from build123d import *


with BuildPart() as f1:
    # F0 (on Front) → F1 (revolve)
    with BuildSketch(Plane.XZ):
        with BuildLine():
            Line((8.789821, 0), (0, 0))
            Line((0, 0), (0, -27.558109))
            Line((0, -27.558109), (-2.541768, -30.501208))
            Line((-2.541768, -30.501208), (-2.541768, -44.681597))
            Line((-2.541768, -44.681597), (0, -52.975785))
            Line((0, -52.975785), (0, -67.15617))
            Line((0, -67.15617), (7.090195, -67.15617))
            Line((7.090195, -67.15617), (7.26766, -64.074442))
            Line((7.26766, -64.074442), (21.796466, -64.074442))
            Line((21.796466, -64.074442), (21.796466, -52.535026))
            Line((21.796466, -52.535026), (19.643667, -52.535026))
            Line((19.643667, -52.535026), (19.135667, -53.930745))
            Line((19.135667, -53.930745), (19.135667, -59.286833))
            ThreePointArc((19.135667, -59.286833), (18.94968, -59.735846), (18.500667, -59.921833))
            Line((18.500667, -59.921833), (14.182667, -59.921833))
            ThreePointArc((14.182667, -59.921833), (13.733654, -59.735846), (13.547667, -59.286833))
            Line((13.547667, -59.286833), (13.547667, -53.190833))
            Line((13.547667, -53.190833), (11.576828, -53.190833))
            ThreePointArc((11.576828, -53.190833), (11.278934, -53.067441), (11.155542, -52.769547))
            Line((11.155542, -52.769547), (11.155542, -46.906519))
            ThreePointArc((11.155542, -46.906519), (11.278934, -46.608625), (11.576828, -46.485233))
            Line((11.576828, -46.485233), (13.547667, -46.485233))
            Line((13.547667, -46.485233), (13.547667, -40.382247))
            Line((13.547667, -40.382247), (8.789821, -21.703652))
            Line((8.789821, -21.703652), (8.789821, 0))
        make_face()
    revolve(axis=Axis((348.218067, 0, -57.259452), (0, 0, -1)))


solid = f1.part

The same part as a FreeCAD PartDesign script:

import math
import FreeCAD as App
import Part
import Sketcher
from FreeCAD import Vector
Q = App.Units.Quantity

doc = App.newDocument("Part")
body = doc.addObject("PartDesign::Body", "Body")

# Sketch on XZ plane
sketch1 = body.newObject("Sketcher::SketchObject", "Sketch")
sketch1.AttachmentSupport = (doc.getObject("XZ_Plane"), [""])
sketch1.MapMode = "FlatFace"
sketch1.addGeometry([
    Part.LineSegment(Vector(8.79, 0, 0), Vector(0, 0, 0)),  # 0
    Part.LineSegment(Vector(0, 0, 0), Vector(0, -27.56, 0)),  # 1
    Part.LineSegment(Vector(0, -27.56, 0), Vector(-2.54, -30.5, 0)),  # 2
    Part.LineSegment(Vector(-2.54, -30.5, 0), Vector(-2.54, -44.68, 0)),  # 3
    Part.LineSegment(Vector(-2.54, -44.68, 0), Vector(0, -52.98, 0)),  # 4
    Part.LineSegment(Vector(0, -52.98, 0), Vector(0, -67.16, 0)),  # 5
    Part.LineSegment(Vector(0, -67.16, 0), Vector(7.09, -67.16, 0)),  # 6
    Part.LineSegment(Vector(7.09, -67.16, 0), Vector(7.27, -64.07, 0)),  # 7
    Part.LineSegment(Vector(7.27, -64.07, 0), Vector(21.8, -64.07, 0)),  # 8
    Part.LineSegment(Vector(21.8, -64.07, 0), Vector(21.8, -52.54, 0)),  # 9
    Part.LineSegment(Vector(21.8, -52.54, 0), Vector(19.64, -52.54, 0)),  # 10
    Part.LineSegment(Vector(19.64, -52.54, 0), Vector(19.14, -53.93, 0)),  # 11
    Part.LineSegment(Vector(19.14, -53.93, 0), Vector(19.14, -59.29, 0)),  # 12
    Part.ArcOfCircle(Part.Circle(Vector(18.5, -59.29, 0), Vector(0, 0, 1), 0.63), math.radians(-90), math.radians(0)),  # 13
    Part.LineSegment(Vector(18.5, -59.92, 0), Vector(14.18, -59.92, 0)),  # 14
    Part.ArcOfCircle(Part.Circle(Vector(14.18, -59.29, 0), Vector(0, 0, 1), 0.63), math.radians(180), math.radians(270)),  # 15
    Part.LineSegment(Vector(13.55, -59.29, 0), Vector(13.55, -53.19, 0)),  # 16
    Part.LineSegment(Vector(13.55, -53.19, 0), Vector(11.58, -53.19, 0)),  # 17
    Part.ArcOfCircle(Part.Circle(Vector(11.58, -52.77, 0), Vector(0, 0, 1), 0.42), math.radians(-180), math.radians(-90)),  # 18
    Part.LineSegment(Vector(11.16, -52.77, 0), Vector(11.16, -46.91, 0)),  # 19
    Part.ArcOfCircle(Part.Circle(Vector(11.58, -46.91, 0), Vector(0, 0, 1), 0.42), math.radians(90), math.radians(180)),  # 20
    Part.LineSegment(Vector(11.58, -46.49, 0), Vector(13.55, -46.49, 0)),  # 21
    Part.LineSegment(Vector(13.55, -46.49, 0), Vector(13.55, -40.38, 0)),  # 22
    Part.LineSegment(Vector(13.55, -40.38, 0), Vector(8.79, -21.7, 0)),  # 23
    Part.LineSegment(Vector(8.79, -21.7, 0), Vector(8.79, 0, 0)),  # 24
], False)
sketch1.addGeometry(Part.LineSegment(Vector(348.22, 0, 0), Vector(348.22, -67.16, 0)), True)  # axis
sketch1.addConstraint([
    Sketcher.Constraint("Coincident", 0, 2, 1, 1),
    Sketcher.Constraint("Coincident", 1, 2, 2, 1),
    Sketcher.Constraint("Coincident", 2, 2, 3, 1),
    Sketcher.Constraint("Coincident", 3, 2, 4, 1),
    Sketcher.Constraint("Coincident", 4, 2, 5, 1),
    Sketcher.Constraint("Coincident", 5, 2, 6, 1),
    Sketcher.Constraint("Coincident", 6, 2, 7, 1),
    Sketcher.Constraint("Coincident", 7, 2, 8, 1),
    Sketcher.Constraint("Coincident", 8, 2, 9, 1),
    Sketcher.Constraint("Coincident", 9, 2, 10, 1),
    Sketcher.Constraint("Coincident", 10, 2, 11, 1),
    Sketcher.Constraint("Coincident", 11, 2, 12, 1),
    Sketcher.Constraint("Tangent", 12, 2, 13, 2),
    Sketcher.Constraint("Tangent", 13, 1, 14, 1),
    Sketcher.Constraint("Tangent", 14, 2, 15, 2),
    Sketcher.Constraint("Tangent", 15, 1, 16, 1),
    Sketcher.Constraint("Coincident", 16, 2, 17, 1),
    Sketcher.Constraint("Tangent", 17, 2, 18, 2),
    Sketcher.Constraint("Tangent", 18, 1, 19, 1),
    Sketcher.Constraint("Tangent", 19, 2, 20, 2),
    Sketcher.Constraint("Tangent", 20, 1, 21, 1),
    Sketcher.Constraint("Coincident", 21, 2, 22, 1),
    Sketcher.Constraint("Coincident", 22, 2, 23, 1),
    Sketcher.Constraint("Coincident", 23, 2, 24, 1),
    Sketcher.Constraint("Coincident", 24, 2, 0, 1),
    Sketcher.Constraint("Horizontal", 0),
    Sketcher.Constraint("Vertical", 1),
    Sketcher.Constraint("Vertical", 3),
    Sketcher.Constraint("Vertical", 5),
    Sketcher.Constraint("Horizontal", 6),
    Sketcher.Constraint("Horizontal", 8),
    Sketcher.Constraint("Vertical", 9),
    Sketcher.Constraint("Horizontal", 10),
    Sketcher.Constraint("Vertical", 12),
    Sketcher.Constraint("Horizontal", 14),
    Sketcher.Constraint("Vertical", 16),
    Sketcher.Constraint("Horizontal", 17),
    Sketcher.Constraint("Vertical", 19),
    Sketcher.Constraint("Horizontal", 21),
    Sketcher.Constraint("Vertical", 22),
    Sketcher.Constraint("Vertical", 24),
    Sketcher.Constraint("Vertical", 25),
    Sketcher.Constraint("Coincident", 0, 2, -1, 1),
    Sketcher.Constraint("Equal", 13, 15),
    Sketcher.Constraint("Equal", 18, 20),
    Sketcher.Constraint("PointOnObject", 4, 2, -2),
    Sketcher.Constraint("PointOnObject", 25, 1, -1),
    Sketcher.Constraint("Horizontal", 6, 2, 25, 2),
    Sketcher.Constraint("Vertical", 16, 2, 21, 2),
    Sketcher.Constraint("Angle", 11, Q("-109.999994 deg")),
    Sketcher.Constraint("Radius", 13, Q("0.025 in")),
    Sketcher.Constraint("DistanceX", 14, 2, 14, 1, Q("0.17 in")),
    Sketcher.Constraint("DistanceY", 16, 1, 16, 2, Q("0.24 in")),
    Sketcher.Constraint("DistanceX", 11, 2, 10, 2, Q("0.02 in")),
    Sketcher.Constraint("DistanceY", 17, 2, 20, 1, Q("0.264 in")),
    Sketcher.Constraint("DistanceX", 10, 2, 25, 1, Q("12.936 in")),
    Sketcher.Constraint("DistanceX", 10, 2, 10, 1, 2.152799),
    Sketcher.Constraint("Radius", 18, 0.421287),
    Sketcher.Constraint("DistanceX", 0, 2, 0, 1, 8.789821),
    Sketcher.Constraint("DistanceX", 17, 2, 17, 1, 1.970839),
    Sketcher.Constraint("DistanceY", 1, 2, 1, 1, 27.558109),
    Sketcher.Constraint("DistanceY", 3, 2, 3, 1, 14.180389),
    Sketcher.Constraint("DistanceY", 25, 2, 25, 1, 67.15617),
    Sketcher.Constraint("DistanceY", 2, 2, 1, 2, 2.943099),
    Sketcher.Constraint("DistanceY", 11, 2, 18, 3, 1.161199),
    Sketcher.Constraint("DistanceY", 18, 3, 22, 2, 12.387299),
    Sketcher.Constraint("DistanceX", 6, 1, 6, 2, 7.090195),
    Sketcher.Constraint("DistanceX", 8, 1, 8, 2, 14.528806),
    Sketcher.Constraint("DistanceY", 5, 2, 5, 1, 14.180385),
    Sketcher.Constraint("DistanceY", 9, 1, 9, 2, 11.539416),
    Sketcher.Constraint("DistanceY", 24, 1, 24, 2, 21.703652),
    Sketcher.Constraint("DistanceX", -1, 1, 18, 3, 11.576829),
    Sketcher.Constraint("DistanceY", 20, 3, -1, 1, 46.90652),
    Sketcher.Constraint("DistanceX", 2, 2, 23, 2, 11.331589),
])
revolution = body.newObject("PartDesign::Revolution", "Revolution")
revolution.Profile = sketch1
revolution.ReferenceAxis = (sketch1, ["Axis0"])
revolution.Angle = 360

doc.recompute()
